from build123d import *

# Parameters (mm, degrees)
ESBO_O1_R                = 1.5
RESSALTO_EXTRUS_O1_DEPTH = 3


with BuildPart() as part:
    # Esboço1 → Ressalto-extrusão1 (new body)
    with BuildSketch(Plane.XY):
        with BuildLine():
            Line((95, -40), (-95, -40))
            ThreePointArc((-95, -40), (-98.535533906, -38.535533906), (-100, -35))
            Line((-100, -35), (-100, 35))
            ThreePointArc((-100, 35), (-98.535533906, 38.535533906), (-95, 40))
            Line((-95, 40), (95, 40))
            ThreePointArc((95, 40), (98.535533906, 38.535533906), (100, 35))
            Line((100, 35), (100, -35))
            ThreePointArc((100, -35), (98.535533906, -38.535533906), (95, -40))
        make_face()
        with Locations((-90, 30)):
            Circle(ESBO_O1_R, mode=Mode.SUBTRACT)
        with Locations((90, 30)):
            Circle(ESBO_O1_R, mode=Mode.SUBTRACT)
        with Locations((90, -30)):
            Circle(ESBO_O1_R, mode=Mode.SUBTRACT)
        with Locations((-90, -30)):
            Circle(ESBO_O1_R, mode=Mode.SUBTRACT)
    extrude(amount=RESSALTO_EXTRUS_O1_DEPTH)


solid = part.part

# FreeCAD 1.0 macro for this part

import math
import FreeCAD as App
import Part
import Sketcher
from FreeCAD import Vector

doc = App.newDocument("Part")
body = doc.addObject("PartDesign::Body", "Body")

# Sketch on XY plane
sketch1 = doc.addObject("Sketcher::SketchObject", "Sketch")
body.addObject(sketch1)
sketch1.AttachmentSupport = (doc.XY_Plane, [""])
sketch1.MapMode = "FlatFace"
sketch1.addGeometry([
    Part.LineSegment(Vector(-95, -40, 0), Vector(95, -40, 0)),  # 0
    Part.ArcOfCircle(Part.Circle(Vector(95, -35, 0), Vector(0, 0, 1), 5), math.radians(-90), math.radians(0)),  # 1
    Part.LineSegment(Vector(100, -35, 0), Vector(100, 35, 0)),  # 2
    Part.ArcOfCircle(Part.Circle(Vector(95, 35, 0), Vector(0, 0, 1), 5), math.radians(0), math.radians(90)),  # 3
    Part.LineSegment(Vector(95, 40, 0), Vector(-95, 40, 0)),  # 4
    Part.ArcOfCircle(Part.Circle(Vector(-95, 35, 0), Vector(0, 0, 1), 5), math.radians(90), math.radians(180)),  # 5
    Part.LineSegment(Vector(-100, 35, 0), Vector(-100, -35, 0)),  # 6
    Part.ArcOfCircle(Part.Circle(Vector(-95, -35, 0), Vector(0, 0, 1), 5), math.radians(180), math.radians(270)),  # 7
    Part.Circle(Vector(90, -30, 0), Vector(0, 0, 1), 1.5),  # 8
    Part.Circle(Vector(-90, -30, 0), Vector(0, 0, 1), 1.5),  # 9
    Part.Circle(Vector(90, 30, 0), Vector(0, 0, 1), 1.5),  # 10
    Part.Circle(Vector(-90, 30, 0), Vector(0, 0, 1), 1.5),  # 11
], False)
sketch1.addConstraint([
    Sketcher.Constraint("Tangent", 0, 2, 1, 1),
    Sketcher.Constraint("Tangent", 1, 2, 2, 1),
    Sketcher.Constraint("Tangent", 2, 2, 3, 1),
    Sketcher.Constraint("Tangent", 3, 2, 4, 1),
    Sketcher.Constraint("Tangent", 4, 2, 5, 1),
    Sketcher.Constraint("Tangent", 5, 2, 6, 1),
    Sketcher.Constraint("Tangent", 6, 2, 7, 1),
    Sketcher.Constraint("Tangent", 7, 2, 0, 1),
    Sketcher.Constraint("Horizontal", 0),
    Sketcher.Constraint("Vertical", 2),
    Sketcher.Constraint("Horizontal", 4),
    Sketcher.Constraint("Vertical", 6),
    Sketcher.Constraint("Equal", 1, 3),
    Sketcher.Constraint("Equal", 3, 5),
    Sketcher.Constraint("Equal", 5, 7),
    Sketcher.Constraint("Equal", 8, 9),
    Sketcher.Constraint("Equal", 9, 10),
    Sketcher.Constraint("Equal", 10, 11),
    Sketcher.Constraint("Symmetric", 1, 3, 5, 3, -1, 1),
    Sketcher.Constraint("Symmetric", 9, 3, 10, 3, -1, 1),
    Sketcher.Constraint("Symmetric", 8, 3, 11, 3, -1, 1),
    Sketcher.Constraint("Symmetric", 8, 3, 9, 3, -2),
    Sketcher.Constraint("Diameter", 8, 3.0),
    Sketcher.Constraint("Radius", 1, 5.0),
    Sketcher.Constraint("DistanceX", 0, 1, 0, 2, 190.0),
    Sketcher.Constraint("DistanceY", 2, 1, 2, 2, 70.0),
    Sketcher.Constraint("DistanceX", -1, 1, 8, 3, 90.0),
    Sketcher.Constraint("DistanceY", 8, 3, -1, 1, 30.0),
])
pad1 = doc.addObject("PartDesign::Pad", "Pad")
body.addObject(pad1)
pad1.Profile = sketch1
pad1.Length = 3

doc.recompute()
